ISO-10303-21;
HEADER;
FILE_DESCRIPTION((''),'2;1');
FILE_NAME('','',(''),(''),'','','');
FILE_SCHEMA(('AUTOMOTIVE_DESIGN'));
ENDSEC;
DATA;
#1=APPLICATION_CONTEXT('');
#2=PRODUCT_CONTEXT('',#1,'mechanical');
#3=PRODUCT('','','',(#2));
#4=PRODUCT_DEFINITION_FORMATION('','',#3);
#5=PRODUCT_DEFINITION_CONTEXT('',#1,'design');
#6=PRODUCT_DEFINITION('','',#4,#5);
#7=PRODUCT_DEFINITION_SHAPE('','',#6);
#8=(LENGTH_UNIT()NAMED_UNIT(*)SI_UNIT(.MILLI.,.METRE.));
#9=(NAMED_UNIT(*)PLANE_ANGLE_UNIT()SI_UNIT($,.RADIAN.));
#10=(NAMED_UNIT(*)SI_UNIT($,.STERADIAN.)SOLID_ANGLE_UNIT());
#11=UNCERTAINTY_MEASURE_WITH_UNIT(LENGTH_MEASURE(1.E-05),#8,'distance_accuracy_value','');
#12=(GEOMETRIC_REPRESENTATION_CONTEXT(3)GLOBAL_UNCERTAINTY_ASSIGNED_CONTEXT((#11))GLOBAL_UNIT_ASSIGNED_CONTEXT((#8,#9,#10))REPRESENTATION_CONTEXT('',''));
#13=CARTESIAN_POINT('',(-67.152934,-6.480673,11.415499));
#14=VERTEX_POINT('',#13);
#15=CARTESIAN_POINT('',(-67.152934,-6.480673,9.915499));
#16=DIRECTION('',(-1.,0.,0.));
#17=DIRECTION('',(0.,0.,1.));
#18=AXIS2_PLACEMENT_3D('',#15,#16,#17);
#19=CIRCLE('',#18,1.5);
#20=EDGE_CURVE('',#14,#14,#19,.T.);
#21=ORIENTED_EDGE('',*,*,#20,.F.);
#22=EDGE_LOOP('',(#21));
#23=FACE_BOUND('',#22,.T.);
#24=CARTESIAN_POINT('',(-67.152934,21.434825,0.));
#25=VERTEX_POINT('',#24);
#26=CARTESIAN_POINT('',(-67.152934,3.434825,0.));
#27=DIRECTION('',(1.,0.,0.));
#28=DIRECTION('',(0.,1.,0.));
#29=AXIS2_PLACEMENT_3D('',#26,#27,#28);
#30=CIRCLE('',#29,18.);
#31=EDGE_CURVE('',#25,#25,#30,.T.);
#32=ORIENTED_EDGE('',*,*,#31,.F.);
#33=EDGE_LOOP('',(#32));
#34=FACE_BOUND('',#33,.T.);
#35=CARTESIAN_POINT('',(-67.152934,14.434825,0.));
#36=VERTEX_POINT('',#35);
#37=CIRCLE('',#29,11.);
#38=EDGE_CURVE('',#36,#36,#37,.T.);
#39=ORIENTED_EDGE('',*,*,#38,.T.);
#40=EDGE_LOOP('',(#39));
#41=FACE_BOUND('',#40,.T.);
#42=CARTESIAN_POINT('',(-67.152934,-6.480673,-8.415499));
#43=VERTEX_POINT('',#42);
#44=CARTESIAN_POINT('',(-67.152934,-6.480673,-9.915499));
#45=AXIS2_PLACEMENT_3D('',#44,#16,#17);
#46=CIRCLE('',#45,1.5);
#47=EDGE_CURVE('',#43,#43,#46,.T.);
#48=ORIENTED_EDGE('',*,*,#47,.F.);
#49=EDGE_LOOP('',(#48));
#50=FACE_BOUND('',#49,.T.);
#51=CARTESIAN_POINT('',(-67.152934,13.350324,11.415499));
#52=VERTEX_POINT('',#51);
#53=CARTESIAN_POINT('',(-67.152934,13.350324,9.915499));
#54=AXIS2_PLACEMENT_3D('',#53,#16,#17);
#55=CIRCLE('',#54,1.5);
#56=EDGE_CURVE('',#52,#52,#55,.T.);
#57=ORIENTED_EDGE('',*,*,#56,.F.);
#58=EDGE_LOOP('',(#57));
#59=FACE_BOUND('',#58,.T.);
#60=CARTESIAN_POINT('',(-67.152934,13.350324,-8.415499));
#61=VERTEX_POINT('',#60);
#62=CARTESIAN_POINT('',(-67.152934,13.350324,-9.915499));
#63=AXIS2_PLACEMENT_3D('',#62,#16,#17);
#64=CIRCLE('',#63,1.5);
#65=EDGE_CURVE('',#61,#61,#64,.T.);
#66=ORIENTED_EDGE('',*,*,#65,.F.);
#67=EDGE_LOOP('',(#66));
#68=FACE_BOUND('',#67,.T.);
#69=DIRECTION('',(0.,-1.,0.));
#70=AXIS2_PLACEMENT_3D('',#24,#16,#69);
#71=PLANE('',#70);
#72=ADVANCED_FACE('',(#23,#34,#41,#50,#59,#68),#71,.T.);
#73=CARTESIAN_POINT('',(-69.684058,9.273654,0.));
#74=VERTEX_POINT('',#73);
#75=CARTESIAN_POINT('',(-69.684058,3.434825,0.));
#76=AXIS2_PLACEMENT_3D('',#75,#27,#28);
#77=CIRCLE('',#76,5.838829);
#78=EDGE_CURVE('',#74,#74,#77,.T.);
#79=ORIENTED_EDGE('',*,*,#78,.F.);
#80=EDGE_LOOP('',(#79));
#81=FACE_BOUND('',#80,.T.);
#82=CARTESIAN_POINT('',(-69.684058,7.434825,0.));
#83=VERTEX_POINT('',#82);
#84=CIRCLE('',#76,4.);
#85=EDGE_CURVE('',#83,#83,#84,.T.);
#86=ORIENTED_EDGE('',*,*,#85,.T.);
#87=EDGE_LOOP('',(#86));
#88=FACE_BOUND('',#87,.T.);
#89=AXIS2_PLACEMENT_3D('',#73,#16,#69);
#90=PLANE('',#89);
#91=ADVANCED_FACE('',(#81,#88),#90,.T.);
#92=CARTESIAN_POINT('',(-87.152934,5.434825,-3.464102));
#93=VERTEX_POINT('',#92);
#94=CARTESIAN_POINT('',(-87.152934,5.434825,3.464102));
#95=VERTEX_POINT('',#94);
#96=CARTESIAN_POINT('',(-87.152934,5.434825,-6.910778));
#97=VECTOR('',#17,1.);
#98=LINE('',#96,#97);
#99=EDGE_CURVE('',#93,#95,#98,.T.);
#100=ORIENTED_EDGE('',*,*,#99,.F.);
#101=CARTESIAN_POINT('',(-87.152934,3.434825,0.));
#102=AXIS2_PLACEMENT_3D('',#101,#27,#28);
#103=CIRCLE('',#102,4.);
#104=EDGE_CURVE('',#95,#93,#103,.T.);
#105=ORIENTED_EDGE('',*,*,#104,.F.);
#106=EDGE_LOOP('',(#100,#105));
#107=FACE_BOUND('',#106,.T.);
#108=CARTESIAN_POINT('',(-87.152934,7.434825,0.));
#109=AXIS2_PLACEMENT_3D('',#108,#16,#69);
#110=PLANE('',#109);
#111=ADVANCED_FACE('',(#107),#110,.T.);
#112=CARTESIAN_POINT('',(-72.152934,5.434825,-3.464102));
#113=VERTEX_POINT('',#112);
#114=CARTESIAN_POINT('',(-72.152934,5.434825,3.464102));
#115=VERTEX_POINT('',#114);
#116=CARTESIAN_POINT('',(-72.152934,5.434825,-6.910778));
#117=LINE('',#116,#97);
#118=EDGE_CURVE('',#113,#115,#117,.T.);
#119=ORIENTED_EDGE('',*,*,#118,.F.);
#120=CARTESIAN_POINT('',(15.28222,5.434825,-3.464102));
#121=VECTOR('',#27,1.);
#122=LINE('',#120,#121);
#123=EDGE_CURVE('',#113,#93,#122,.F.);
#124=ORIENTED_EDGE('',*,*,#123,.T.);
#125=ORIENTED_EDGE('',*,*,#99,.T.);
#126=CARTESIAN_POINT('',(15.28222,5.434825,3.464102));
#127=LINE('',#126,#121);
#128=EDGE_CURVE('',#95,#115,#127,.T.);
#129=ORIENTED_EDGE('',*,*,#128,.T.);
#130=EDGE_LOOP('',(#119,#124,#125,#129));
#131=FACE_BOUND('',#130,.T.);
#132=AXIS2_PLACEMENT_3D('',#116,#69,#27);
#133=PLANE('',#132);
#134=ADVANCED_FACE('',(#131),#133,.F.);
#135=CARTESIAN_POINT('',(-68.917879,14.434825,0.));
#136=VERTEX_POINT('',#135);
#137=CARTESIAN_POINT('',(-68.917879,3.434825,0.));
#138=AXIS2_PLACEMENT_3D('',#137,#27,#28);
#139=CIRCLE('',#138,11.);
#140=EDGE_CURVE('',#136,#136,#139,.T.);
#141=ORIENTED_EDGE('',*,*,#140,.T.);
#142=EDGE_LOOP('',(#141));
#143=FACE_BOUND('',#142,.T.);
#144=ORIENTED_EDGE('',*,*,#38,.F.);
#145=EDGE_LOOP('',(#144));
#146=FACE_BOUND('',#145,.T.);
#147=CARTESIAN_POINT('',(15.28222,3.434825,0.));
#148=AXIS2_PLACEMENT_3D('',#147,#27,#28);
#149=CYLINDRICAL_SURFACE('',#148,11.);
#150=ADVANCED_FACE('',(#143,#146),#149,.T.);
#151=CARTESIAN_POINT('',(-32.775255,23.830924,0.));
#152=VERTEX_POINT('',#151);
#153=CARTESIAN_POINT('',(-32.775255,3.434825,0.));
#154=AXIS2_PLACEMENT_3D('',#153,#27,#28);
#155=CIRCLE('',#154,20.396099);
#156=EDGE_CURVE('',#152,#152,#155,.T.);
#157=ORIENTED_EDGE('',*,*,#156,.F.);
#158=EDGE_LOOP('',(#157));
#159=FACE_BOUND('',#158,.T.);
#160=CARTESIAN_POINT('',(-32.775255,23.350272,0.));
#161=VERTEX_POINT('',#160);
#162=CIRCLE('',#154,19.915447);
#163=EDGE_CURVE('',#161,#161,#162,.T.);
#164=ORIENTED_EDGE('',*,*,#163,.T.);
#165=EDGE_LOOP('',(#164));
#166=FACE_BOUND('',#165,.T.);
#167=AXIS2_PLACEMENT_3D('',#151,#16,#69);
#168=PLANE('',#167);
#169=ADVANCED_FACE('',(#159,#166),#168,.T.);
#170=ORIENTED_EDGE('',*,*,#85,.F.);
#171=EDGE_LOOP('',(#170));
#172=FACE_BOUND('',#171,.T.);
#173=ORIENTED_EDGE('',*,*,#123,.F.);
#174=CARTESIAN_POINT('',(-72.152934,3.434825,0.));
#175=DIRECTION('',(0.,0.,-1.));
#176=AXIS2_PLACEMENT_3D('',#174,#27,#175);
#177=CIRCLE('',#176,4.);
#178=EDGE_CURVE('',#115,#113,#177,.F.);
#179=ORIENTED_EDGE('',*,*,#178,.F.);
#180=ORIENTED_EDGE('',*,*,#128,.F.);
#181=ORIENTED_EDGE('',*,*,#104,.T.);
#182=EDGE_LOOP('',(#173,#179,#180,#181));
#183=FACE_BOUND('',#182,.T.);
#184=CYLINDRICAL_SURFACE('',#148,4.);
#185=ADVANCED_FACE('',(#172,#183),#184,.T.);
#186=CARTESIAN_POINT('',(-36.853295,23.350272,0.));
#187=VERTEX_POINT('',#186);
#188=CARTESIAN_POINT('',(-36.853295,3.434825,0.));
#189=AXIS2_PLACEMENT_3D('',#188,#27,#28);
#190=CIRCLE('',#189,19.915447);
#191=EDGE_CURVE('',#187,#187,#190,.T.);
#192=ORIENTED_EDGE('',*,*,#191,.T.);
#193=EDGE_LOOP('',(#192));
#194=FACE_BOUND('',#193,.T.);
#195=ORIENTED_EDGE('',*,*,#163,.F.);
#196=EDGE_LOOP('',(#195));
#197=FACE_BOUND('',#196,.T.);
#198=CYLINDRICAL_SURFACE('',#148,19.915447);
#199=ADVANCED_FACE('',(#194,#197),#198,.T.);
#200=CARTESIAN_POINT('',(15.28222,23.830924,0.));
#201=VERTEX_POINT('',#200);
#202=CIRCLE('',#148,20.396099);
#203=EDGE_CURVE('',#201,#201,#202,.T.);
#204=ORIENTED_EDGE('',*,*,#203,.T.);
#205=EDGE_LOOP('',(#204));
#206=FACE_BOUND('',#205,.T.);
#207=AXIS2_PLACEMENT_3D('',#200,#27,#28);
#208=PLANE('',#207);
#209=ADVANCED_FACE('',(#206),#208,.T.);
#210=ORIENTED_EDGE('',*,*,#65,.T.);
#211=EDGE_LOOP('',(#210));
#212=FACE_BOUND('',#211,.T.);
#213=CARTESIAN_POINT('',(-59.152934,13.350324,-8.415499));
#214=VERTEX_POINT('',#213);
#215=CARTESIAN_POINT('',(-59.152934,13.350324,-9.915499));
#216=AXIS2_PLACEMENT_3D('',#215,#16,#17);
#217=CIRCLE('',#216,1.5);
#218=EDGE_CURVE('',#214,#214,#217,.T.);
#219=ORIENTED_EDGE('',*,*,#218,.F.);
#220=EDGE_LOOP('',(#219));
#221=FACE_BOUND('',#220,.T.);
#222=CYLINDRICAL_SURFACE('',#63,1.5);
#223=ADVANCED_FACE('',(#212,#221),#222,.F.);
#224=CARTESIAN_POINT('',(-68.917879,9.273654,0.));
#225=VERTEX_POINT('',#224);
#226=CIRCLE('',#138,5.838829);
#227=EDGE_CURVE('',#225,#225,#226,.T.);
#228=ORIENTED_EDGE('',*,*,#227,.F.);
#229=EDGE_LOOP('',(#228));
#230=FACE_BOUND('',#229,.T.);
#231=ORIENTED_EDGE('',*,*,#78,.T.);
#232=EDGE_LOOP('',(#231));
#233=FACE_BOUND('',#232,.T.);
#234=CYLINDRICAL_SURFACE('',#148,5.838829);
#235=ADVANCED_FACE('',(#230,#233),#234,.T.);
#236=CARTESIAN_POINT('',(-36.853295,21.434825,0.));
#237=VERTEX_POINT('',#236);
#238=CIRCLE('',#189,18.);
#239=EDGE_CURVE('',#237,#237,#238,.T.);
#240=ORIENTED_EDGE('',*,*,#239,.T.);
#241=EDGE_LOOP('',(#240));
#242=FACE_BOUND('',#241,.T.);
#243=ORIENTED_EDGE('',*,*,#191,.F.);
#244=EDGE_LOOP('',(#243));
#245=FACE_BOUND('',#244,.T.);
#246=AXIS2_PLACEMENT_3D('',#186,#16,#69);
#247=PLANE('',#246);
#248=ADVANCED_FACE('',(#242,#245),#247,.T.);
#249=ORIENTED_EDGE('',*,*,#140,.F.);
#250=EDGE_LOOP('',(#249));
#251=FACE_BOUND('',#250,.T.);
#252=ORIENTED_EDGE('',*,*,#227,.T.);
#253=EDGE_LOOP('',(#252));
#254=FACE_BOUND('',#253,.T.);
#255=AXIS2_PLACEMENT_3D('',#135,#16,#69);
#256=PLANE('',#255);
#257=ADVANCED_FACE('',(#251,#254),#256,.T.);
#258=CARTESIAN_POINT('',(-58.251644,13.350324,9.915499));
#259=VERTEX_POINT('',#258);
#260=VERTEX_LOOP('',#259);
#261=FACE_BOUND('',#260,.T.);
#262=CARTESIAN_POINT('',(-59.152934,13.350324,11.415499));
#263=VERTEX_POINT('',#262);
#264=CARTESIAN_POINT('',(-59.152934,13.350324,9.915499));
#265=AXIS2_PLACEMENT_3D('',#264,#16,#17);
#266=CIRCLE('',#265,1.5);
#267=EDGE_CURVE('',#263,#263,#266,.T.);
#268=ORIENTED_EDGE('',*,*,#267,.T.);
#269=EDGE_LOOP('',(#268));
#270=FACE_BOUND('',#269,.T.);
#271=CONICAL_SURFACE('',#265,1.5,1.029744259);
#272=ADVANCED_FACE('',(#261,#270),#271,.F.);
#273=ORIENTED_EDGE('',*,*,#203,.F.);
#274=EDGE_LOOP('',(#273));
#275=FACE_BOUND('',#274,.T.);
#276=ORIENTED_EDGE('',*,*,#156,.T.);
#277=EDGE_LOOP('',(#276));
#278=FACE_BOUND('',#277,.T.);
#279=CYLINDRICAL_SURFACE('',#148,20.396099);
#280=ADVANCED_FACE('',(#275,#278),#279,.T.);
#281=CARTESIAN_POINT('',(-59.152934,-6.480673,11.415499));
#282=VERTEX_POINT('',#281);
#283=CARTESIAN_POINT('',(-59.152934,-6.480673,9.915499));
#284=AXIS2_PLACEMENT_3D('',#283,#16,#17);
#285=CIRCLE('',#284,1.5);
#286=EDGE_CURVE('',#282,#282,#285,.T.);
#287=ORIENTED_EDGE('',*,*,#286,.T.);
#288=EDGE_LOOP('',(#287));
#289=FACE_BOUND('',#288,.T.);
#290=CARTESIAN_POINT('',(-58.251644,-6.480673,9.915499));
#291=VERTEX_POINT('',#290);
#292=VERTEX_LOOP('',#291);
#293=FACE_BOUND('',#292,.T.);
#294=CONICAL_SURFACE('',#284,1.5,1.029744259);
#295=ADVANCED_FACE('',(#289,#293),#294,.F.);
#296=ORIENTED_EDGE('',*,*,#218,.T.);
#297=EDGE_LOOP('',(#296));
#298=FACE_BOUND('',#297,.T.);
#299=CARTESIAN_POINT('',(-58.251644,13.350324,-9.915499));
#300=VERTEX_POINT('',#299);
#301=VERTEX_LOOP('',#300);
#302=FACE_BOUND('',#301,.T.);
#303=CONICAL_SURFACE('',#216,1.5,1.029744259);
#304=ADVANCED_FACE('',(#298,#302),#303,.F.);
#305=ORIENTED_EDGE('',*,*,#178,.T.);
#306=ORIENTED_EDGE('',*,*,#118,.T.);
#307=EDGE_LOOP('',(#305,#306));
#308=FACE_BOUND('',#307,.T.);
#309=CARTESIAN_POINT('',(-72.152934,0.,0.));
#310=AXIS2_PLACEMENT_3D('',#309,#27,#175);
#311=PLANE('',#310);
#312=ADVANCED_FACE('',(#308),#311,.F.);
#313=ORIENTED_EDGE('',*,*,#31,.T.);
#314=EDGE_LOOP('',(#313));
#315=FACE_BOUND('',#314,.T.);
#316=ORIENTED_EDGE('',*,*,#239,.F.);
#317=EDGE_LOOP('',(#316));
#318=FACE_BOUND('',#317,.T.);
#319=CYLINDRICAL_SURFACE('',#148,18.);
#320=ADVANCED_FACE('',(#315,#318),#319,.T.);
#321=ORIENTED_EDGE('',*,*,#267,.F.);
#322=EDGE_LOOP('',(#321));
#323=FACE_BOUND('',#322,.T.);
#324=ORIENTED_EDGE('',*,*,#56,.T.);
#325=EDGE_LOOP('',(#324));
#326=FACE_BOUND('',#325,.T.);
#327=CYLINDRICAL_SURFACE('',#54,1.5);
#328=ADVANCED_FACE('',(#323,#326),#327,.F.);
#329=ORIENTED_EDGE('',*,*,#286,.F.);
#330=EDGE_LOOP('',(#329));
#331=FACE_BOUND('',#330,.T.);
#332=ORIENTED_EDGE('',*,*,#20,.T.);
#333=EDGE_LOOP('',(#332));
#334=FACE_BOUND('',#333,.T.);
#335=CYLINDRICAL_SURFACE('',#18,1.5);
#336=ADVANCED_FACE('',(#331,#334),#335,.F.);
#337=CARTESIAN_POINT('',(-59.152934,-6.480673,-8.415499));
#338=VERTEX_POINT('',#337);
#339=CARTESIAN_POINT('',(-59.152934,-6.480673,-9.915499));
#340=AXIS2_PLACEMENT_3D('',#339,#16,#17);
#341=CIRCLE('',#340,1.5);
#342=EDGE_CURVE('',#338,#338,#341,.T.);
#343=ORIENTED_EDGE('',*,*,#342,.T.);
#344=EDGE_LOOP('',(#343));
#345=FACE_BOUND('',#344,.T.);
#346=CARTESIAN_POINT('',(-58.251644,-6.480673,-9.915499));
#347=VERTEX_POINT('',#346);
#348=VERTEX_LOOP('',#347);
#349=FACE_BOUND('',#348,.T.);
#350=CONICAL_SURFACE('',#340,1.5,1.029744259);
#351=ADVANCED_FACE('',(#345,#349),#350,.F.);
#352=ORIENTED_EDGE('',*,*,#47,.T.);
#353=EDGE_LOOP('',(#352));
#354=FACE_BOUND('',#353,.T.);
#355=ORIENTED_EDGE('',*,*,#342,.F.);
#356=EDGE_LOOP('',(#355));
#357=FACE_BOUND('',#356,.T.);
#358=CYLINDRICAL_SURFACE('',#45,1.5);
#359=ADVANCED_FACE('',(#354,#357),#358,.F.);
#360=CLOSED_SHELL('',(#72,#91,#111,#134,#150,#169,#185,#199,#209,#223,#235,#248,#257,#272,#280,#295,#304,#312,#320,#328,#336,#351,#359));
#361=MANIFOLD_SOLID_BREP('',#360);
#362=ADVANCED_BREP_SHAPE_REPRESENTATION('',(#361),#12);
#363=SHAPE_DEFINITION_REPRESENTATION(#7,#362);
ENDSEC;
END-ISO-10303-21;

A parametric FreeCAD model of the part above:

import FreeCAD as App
import Part
import Sketcher
from FreeCAD import Vector

doc = App.newDocument("Part")
params = doc.addObject("Spreadsheet::Sheet", "Params")
for row, (alias, value) in enumerate([
    ("sketch1_height", "7 mm"),
    ("sketch1_height2", "4 mm"),
    ("revolution_angle", "360 deg"),
    ("sketch2_diameter", "3 mm"),
    ("hole_diameter", "3 mm"),
    ("hole_depth", "8 mm"),
    ("pocket1_length", "15 mm"),
], start=1):
    params.set(f"A{row}", alias)
    params.set(f"B{row}", "=" + value)
    params.setAlias(f"B{row}", alias)

body = doc.addObject("PartDesign::Body", "Body")

sketch1 = body.newObject("Sketcher::SketchObject", "Sketch")
sketch1.AttachmentSupport = (doc.getObject("XY_Plane"), [""])
sketch1.MapMode = "FlatFace"
sketch1.addGeometry([
    Part.LineSegment(Vector(15.28222, 23.830924, 0), Vector(-32.775255, 23.830924, 0)),
    Part.LineSegment(Vector(-32.775255, 23.830924, 0), Vector(-32.775255, 23.350272, 0)),
    Part.LineSegment(Vector(-32.775255, 23.350272, 0), Vector(-36.853295, 23.350272, 0)),
    Part.LineSegment(Vector(-36.853295, 23.350272, 0), Vector(-36.853295, 21.434825, 0)),
    Part.LineSegment(Vector(-36.853295, 21.434825, 0), Vector(-67.152934, 21.434825, 0)),
    Part.LineSegment(Vector(-67.152934, 21.434825, 0), Vector(-67.152934, 14.434825, 0)),
    Part.LineSegment(Vector(-67.152934, 14.434825, 0), Vector(-68.917879, 14.434825, 0)),
    Part.LineSegment(Vector(-68.917879, 14.434825, 0), Vector(-68.917879, 9.273654, 0)),
    Part.LineSegment(Vector(-68.917879, 9.273654, 0), Vector(-69.684057, 9.273654, 0)),
    Part.LineSegment(Vector(-69.684057, 9.273654, 0), Vector(-69.684057, 7.434825, 0)),
    Part.LineSegment(Vector(-69.684057, 7.434825, 0), Vector(-87.152934, 7.434825, 0)),
    Part.LineSegment(Vector(-87.152934, 7.434825, 0), Vector(-87.152934, 3.434825, 0)),
    Part.LineSegment(Vector(-87.152934, 3.434825, 0), Vector(15.28222, 3.434825, 0)),
    Part.LineSegment(Vector(15.28222, 3.434825, 0), Vector(15.28222, 23.830924, 0)),
], False)
sketch1.addGeometry(Part.LineSegment(Vector(15.28222, 3.434825, 0), Vector(-87.152934, 3.434825, 0)), True)
sketch1.addConstraint([
    Sketcher.Constraint("Coincident", 0, 2, 1, 1),
    Sketcher.Constraint("Coincident", 1, 2, 2, 1),
    Sketcher.Constraint("Coincident", 2, 2, 3, 1),
    Sketcher.Constraint("Coincident", 3, 2, 4, 1),
    Sketcher.Constraint("Coincident", 4, 2, 5, 1),
    Sketcher.Constraint("Coincident", 5, 2, 6, 1),
    Sketcher.Constraint("Coincident", 6, 2, 7, 1),
    Sketcher.Constraint("Coincident", 7, 2, 8, 1),
    Sketcher.Constraint("Coincident", 8, 2, 9, 1),
    Sketcher.Constraint("Coincident", 9, 2, 10, 1),
    Sketcher.Constraint("Coincident", 10, 2, 11, 1),
    Sketcher.Constraint("Coincident", 11, 2, 12, 1),
    Sketcher.Constraint("Coincident", 12, 2, 13, 1),
    Sketcher.Constraint("Coincident", 13, 2, 0, 1),
    Sketcher.Constraint("Horizontal", 0),
    Sketcher.Constraint("Vertical", 1),
    Sketcher.Constraint("Horizontal", 2),
    Sketcher.Constraint("Vertical", 3),
    Sketcher.Constraint("Horizontal", 4),
    Sketcher.Constraint("Vertical", 5),
    Sketcher.Constraint("Horizontal", 6),
    Sketcher.Constraint("Vertical", 7),
    Sketcher.Constraint("Horizontal", 8),
    Sketcher.Constraint("Vertical", 9),
    Sketcher.Constraint("Horizontal", 10),
    Sketcher.Constraint("Vertical", 11),
    Sketcher.Constraint("Horizontal", 12),
    Sketcher.Constraint("Vertical", 13),
    Sketcher.Constraint("Horizontal", 14),
    Sketcher.Constraint("Coincident", 14, 1, 12, 2),
    Sketcher.Constraint("Vertical", 10, 2, 14, 2),
    Sketcher.Constraint("DistanceY", 5, 2, 5, 1, 7.0),
    Sketcher.Constraint("DistanceY", 11, 2, 11, 1, 4.0),
    Sketcher.Constraint("DistanceY", 9, 2, 6, 2, 7.0),
    Sketcher.Constraint("DistanceX", 10, 2, 5, 2, 20.0),
    Sketcher.Constraint("DistanceY", 13, 1, 13, 2, 20.396099),
    Sketcher.Constraint("DistanceX", 2, 2, 2, 1, 4.078041),
    Sketcher.Constraint("DistanceX", 4, 2, 4, 1, 30.299639),
    Sketcher.Constraint("DistanceX", 8, 2, 8, 1, 0.766179),
    Sketcher.Constraint("DistanceY", 1, 2, 1, 1, 0.480652),
    Sketcher.Constraint("DistanceY", 7, 2, 7, 1, 5.161171),
    Sketcher.Constraint("DistanceX", 0, 2, 0, 1, 48.057475),
    Sketcher.Constraint("DistanceX", 6, 2, 6, 1, 1.764944),
    Sketcher.Constraint("DistanceX", 6, 2, -1, 1, 68.917879),
    Sketcher.Constraint("DistanceY", -1, 1, 0, 2, 23.830924),
])
sketch1.setExpression("Constraints[31]", "Params.sketch1_height")
sketch1.setExpression("Constraints[32]", "Params.sketch1_height2")
revolution = body.newObject("PartDesign::Revolution", "Revolution")
revolution.Profile = sketch1
revolution.ReferenceAxis = (sketch1, ["Axis0"])
revolution.setExpression("Angle", "Params.revolution_angle")

sketch2 = body.newObject("Sketcher::SketchObject", "Sketch001")
sketch2.AttachmentSupport = (doc.getObject("YZ_Plane"), [""])
sketch2.MapMode = "FlatFace"
sketch2.AttachmentOffset = App.Placement(Vector(0, 0, -67.152934), App.Rotation())
sketch2.addGeometry([
    Part.Circle(Vector(13.350324, -9.915499, 0), Vector(0, 0, 1), 1.5),
    Part.Circle(Vector(13.350324, 9.915499, 0), Vector(0, 0, 1), 1.5),
    Part.Circle(Vector(-6.480673, 9.915499, 0), Vector(0, 0, 1), 1.5),
    Part.Circle(Vector(-6.480673, -9.915499, 0), Vector(0, 0, 1), 1.5),
], False)
sketch2.addConstraint([
    Sketcher.Constraint("Equal", 0, 1),
    Sketcher.Constraint("Equal", 1, 2),
    Sketcher.Constraint("Equal", 2, 3),
    Sketcher.Constraint("Symmetric", 0, 3, 1, 3, -1),
    Sketcher.Constraint("Symmetric", 2, 3, 3, 3, -1),
    Sketcher.Constraint("Horizontal", 1, 3, 2, 3),
    Sketcher.Constraint("Diameter", 0, 3.0),
    Sketcher.Constraint("DistanceY", 0, 3, -1, 1, 9.915499),
    Sketcher.Constraint("DistanceX", -1, 1, 0, 3, 13.350324),
    Sketcher.Constraint("DistanceX", 2, 3, -1, 1, 6.480673),
])
sketch2.setExpression("Constraints[6]", "Params.sketch2_diameter")
doc.recompute()
hole = body.newObject("PartDesign::Hole", "Hole")
hole.Profile = sketch2
hole.ThreadType = "None"
hole.setExpression("Diameter", "Params.hole_diameter")
hole.DepthType = "Dimension"
hole.setExpression("Depth", "Params.hole_depth")
hole.DrillPoint = "Angled"
hole.DrillPointAngle = 118
hole.Reversed = True

sketch3 = body.newObject("Sketcher::SketchObject", "Sketch002")
sketch3.AttachmentSupport = (doc.getObject("YZ_Plane"), [""])
sketch3.MapMode = "FlatFace"
sketch3.AttachmentOffset = App.Placement(Vector(0, 0, -87.152934), App.Rotation())
sketch3.addGeometry([
    Part.LineSegment(Vector(7.781706, -6.910778, 0), Vector(5.434825, -6.910778, 0)),
    Part.LineSegment(Vector(5.434825, -6.910778, 0), Vector(5.434825, 7.754843, 0)),
    Part.LineSegment(Vector(5.434825, 7.754843, 0), Vector(7.781706, 7.754843, 0)),
    Part.LineSegment(Vector(7.781706, 7.754843, 0), Vector(7.781706, -6.910778, 0)),
], False)
sketch3.addConstraint([
    Sketcher.Constraint("Coincident", 0, 2, 1, 1),
    Sketcher.Constraint("Coincident", 1, 2, 2, 1),
    Sketcher.Constraint("Coincident", 2, 2, 3, 1),
    Sketcher.Constraint("Coincident", 3, 2, 0, 1),
    Sketcher.Constraint("Horizontal", 0),
    Sketcher.Constraint("Vertical", 1),
    Sketcher.Constraint("Horizontal", 2),
    Sketcher.Constraint("Vertical", 3),
    Sketcher.Constraint("DistanceX", 0, 2, 0, 1, 2.34688),
    Sketcher.Constraint("DistanceY", 1, 1, 1, 2, 14.665622),
    Sketcher.Constraint("DistanceY", 0, 2, -1, 1, 6.910778),
    Sketcher.Constraint("DistanceX", -1, 1, 0, 2, 5.434825),
])
pocket1 = body.newObject("PartDesign::Pocket", "Pocket")
pocket1.Profile = sketch3
pocket1.setExpression("Length", "Params.pocket1_length")
pocket1.Reversed = True

doc.recompute()
